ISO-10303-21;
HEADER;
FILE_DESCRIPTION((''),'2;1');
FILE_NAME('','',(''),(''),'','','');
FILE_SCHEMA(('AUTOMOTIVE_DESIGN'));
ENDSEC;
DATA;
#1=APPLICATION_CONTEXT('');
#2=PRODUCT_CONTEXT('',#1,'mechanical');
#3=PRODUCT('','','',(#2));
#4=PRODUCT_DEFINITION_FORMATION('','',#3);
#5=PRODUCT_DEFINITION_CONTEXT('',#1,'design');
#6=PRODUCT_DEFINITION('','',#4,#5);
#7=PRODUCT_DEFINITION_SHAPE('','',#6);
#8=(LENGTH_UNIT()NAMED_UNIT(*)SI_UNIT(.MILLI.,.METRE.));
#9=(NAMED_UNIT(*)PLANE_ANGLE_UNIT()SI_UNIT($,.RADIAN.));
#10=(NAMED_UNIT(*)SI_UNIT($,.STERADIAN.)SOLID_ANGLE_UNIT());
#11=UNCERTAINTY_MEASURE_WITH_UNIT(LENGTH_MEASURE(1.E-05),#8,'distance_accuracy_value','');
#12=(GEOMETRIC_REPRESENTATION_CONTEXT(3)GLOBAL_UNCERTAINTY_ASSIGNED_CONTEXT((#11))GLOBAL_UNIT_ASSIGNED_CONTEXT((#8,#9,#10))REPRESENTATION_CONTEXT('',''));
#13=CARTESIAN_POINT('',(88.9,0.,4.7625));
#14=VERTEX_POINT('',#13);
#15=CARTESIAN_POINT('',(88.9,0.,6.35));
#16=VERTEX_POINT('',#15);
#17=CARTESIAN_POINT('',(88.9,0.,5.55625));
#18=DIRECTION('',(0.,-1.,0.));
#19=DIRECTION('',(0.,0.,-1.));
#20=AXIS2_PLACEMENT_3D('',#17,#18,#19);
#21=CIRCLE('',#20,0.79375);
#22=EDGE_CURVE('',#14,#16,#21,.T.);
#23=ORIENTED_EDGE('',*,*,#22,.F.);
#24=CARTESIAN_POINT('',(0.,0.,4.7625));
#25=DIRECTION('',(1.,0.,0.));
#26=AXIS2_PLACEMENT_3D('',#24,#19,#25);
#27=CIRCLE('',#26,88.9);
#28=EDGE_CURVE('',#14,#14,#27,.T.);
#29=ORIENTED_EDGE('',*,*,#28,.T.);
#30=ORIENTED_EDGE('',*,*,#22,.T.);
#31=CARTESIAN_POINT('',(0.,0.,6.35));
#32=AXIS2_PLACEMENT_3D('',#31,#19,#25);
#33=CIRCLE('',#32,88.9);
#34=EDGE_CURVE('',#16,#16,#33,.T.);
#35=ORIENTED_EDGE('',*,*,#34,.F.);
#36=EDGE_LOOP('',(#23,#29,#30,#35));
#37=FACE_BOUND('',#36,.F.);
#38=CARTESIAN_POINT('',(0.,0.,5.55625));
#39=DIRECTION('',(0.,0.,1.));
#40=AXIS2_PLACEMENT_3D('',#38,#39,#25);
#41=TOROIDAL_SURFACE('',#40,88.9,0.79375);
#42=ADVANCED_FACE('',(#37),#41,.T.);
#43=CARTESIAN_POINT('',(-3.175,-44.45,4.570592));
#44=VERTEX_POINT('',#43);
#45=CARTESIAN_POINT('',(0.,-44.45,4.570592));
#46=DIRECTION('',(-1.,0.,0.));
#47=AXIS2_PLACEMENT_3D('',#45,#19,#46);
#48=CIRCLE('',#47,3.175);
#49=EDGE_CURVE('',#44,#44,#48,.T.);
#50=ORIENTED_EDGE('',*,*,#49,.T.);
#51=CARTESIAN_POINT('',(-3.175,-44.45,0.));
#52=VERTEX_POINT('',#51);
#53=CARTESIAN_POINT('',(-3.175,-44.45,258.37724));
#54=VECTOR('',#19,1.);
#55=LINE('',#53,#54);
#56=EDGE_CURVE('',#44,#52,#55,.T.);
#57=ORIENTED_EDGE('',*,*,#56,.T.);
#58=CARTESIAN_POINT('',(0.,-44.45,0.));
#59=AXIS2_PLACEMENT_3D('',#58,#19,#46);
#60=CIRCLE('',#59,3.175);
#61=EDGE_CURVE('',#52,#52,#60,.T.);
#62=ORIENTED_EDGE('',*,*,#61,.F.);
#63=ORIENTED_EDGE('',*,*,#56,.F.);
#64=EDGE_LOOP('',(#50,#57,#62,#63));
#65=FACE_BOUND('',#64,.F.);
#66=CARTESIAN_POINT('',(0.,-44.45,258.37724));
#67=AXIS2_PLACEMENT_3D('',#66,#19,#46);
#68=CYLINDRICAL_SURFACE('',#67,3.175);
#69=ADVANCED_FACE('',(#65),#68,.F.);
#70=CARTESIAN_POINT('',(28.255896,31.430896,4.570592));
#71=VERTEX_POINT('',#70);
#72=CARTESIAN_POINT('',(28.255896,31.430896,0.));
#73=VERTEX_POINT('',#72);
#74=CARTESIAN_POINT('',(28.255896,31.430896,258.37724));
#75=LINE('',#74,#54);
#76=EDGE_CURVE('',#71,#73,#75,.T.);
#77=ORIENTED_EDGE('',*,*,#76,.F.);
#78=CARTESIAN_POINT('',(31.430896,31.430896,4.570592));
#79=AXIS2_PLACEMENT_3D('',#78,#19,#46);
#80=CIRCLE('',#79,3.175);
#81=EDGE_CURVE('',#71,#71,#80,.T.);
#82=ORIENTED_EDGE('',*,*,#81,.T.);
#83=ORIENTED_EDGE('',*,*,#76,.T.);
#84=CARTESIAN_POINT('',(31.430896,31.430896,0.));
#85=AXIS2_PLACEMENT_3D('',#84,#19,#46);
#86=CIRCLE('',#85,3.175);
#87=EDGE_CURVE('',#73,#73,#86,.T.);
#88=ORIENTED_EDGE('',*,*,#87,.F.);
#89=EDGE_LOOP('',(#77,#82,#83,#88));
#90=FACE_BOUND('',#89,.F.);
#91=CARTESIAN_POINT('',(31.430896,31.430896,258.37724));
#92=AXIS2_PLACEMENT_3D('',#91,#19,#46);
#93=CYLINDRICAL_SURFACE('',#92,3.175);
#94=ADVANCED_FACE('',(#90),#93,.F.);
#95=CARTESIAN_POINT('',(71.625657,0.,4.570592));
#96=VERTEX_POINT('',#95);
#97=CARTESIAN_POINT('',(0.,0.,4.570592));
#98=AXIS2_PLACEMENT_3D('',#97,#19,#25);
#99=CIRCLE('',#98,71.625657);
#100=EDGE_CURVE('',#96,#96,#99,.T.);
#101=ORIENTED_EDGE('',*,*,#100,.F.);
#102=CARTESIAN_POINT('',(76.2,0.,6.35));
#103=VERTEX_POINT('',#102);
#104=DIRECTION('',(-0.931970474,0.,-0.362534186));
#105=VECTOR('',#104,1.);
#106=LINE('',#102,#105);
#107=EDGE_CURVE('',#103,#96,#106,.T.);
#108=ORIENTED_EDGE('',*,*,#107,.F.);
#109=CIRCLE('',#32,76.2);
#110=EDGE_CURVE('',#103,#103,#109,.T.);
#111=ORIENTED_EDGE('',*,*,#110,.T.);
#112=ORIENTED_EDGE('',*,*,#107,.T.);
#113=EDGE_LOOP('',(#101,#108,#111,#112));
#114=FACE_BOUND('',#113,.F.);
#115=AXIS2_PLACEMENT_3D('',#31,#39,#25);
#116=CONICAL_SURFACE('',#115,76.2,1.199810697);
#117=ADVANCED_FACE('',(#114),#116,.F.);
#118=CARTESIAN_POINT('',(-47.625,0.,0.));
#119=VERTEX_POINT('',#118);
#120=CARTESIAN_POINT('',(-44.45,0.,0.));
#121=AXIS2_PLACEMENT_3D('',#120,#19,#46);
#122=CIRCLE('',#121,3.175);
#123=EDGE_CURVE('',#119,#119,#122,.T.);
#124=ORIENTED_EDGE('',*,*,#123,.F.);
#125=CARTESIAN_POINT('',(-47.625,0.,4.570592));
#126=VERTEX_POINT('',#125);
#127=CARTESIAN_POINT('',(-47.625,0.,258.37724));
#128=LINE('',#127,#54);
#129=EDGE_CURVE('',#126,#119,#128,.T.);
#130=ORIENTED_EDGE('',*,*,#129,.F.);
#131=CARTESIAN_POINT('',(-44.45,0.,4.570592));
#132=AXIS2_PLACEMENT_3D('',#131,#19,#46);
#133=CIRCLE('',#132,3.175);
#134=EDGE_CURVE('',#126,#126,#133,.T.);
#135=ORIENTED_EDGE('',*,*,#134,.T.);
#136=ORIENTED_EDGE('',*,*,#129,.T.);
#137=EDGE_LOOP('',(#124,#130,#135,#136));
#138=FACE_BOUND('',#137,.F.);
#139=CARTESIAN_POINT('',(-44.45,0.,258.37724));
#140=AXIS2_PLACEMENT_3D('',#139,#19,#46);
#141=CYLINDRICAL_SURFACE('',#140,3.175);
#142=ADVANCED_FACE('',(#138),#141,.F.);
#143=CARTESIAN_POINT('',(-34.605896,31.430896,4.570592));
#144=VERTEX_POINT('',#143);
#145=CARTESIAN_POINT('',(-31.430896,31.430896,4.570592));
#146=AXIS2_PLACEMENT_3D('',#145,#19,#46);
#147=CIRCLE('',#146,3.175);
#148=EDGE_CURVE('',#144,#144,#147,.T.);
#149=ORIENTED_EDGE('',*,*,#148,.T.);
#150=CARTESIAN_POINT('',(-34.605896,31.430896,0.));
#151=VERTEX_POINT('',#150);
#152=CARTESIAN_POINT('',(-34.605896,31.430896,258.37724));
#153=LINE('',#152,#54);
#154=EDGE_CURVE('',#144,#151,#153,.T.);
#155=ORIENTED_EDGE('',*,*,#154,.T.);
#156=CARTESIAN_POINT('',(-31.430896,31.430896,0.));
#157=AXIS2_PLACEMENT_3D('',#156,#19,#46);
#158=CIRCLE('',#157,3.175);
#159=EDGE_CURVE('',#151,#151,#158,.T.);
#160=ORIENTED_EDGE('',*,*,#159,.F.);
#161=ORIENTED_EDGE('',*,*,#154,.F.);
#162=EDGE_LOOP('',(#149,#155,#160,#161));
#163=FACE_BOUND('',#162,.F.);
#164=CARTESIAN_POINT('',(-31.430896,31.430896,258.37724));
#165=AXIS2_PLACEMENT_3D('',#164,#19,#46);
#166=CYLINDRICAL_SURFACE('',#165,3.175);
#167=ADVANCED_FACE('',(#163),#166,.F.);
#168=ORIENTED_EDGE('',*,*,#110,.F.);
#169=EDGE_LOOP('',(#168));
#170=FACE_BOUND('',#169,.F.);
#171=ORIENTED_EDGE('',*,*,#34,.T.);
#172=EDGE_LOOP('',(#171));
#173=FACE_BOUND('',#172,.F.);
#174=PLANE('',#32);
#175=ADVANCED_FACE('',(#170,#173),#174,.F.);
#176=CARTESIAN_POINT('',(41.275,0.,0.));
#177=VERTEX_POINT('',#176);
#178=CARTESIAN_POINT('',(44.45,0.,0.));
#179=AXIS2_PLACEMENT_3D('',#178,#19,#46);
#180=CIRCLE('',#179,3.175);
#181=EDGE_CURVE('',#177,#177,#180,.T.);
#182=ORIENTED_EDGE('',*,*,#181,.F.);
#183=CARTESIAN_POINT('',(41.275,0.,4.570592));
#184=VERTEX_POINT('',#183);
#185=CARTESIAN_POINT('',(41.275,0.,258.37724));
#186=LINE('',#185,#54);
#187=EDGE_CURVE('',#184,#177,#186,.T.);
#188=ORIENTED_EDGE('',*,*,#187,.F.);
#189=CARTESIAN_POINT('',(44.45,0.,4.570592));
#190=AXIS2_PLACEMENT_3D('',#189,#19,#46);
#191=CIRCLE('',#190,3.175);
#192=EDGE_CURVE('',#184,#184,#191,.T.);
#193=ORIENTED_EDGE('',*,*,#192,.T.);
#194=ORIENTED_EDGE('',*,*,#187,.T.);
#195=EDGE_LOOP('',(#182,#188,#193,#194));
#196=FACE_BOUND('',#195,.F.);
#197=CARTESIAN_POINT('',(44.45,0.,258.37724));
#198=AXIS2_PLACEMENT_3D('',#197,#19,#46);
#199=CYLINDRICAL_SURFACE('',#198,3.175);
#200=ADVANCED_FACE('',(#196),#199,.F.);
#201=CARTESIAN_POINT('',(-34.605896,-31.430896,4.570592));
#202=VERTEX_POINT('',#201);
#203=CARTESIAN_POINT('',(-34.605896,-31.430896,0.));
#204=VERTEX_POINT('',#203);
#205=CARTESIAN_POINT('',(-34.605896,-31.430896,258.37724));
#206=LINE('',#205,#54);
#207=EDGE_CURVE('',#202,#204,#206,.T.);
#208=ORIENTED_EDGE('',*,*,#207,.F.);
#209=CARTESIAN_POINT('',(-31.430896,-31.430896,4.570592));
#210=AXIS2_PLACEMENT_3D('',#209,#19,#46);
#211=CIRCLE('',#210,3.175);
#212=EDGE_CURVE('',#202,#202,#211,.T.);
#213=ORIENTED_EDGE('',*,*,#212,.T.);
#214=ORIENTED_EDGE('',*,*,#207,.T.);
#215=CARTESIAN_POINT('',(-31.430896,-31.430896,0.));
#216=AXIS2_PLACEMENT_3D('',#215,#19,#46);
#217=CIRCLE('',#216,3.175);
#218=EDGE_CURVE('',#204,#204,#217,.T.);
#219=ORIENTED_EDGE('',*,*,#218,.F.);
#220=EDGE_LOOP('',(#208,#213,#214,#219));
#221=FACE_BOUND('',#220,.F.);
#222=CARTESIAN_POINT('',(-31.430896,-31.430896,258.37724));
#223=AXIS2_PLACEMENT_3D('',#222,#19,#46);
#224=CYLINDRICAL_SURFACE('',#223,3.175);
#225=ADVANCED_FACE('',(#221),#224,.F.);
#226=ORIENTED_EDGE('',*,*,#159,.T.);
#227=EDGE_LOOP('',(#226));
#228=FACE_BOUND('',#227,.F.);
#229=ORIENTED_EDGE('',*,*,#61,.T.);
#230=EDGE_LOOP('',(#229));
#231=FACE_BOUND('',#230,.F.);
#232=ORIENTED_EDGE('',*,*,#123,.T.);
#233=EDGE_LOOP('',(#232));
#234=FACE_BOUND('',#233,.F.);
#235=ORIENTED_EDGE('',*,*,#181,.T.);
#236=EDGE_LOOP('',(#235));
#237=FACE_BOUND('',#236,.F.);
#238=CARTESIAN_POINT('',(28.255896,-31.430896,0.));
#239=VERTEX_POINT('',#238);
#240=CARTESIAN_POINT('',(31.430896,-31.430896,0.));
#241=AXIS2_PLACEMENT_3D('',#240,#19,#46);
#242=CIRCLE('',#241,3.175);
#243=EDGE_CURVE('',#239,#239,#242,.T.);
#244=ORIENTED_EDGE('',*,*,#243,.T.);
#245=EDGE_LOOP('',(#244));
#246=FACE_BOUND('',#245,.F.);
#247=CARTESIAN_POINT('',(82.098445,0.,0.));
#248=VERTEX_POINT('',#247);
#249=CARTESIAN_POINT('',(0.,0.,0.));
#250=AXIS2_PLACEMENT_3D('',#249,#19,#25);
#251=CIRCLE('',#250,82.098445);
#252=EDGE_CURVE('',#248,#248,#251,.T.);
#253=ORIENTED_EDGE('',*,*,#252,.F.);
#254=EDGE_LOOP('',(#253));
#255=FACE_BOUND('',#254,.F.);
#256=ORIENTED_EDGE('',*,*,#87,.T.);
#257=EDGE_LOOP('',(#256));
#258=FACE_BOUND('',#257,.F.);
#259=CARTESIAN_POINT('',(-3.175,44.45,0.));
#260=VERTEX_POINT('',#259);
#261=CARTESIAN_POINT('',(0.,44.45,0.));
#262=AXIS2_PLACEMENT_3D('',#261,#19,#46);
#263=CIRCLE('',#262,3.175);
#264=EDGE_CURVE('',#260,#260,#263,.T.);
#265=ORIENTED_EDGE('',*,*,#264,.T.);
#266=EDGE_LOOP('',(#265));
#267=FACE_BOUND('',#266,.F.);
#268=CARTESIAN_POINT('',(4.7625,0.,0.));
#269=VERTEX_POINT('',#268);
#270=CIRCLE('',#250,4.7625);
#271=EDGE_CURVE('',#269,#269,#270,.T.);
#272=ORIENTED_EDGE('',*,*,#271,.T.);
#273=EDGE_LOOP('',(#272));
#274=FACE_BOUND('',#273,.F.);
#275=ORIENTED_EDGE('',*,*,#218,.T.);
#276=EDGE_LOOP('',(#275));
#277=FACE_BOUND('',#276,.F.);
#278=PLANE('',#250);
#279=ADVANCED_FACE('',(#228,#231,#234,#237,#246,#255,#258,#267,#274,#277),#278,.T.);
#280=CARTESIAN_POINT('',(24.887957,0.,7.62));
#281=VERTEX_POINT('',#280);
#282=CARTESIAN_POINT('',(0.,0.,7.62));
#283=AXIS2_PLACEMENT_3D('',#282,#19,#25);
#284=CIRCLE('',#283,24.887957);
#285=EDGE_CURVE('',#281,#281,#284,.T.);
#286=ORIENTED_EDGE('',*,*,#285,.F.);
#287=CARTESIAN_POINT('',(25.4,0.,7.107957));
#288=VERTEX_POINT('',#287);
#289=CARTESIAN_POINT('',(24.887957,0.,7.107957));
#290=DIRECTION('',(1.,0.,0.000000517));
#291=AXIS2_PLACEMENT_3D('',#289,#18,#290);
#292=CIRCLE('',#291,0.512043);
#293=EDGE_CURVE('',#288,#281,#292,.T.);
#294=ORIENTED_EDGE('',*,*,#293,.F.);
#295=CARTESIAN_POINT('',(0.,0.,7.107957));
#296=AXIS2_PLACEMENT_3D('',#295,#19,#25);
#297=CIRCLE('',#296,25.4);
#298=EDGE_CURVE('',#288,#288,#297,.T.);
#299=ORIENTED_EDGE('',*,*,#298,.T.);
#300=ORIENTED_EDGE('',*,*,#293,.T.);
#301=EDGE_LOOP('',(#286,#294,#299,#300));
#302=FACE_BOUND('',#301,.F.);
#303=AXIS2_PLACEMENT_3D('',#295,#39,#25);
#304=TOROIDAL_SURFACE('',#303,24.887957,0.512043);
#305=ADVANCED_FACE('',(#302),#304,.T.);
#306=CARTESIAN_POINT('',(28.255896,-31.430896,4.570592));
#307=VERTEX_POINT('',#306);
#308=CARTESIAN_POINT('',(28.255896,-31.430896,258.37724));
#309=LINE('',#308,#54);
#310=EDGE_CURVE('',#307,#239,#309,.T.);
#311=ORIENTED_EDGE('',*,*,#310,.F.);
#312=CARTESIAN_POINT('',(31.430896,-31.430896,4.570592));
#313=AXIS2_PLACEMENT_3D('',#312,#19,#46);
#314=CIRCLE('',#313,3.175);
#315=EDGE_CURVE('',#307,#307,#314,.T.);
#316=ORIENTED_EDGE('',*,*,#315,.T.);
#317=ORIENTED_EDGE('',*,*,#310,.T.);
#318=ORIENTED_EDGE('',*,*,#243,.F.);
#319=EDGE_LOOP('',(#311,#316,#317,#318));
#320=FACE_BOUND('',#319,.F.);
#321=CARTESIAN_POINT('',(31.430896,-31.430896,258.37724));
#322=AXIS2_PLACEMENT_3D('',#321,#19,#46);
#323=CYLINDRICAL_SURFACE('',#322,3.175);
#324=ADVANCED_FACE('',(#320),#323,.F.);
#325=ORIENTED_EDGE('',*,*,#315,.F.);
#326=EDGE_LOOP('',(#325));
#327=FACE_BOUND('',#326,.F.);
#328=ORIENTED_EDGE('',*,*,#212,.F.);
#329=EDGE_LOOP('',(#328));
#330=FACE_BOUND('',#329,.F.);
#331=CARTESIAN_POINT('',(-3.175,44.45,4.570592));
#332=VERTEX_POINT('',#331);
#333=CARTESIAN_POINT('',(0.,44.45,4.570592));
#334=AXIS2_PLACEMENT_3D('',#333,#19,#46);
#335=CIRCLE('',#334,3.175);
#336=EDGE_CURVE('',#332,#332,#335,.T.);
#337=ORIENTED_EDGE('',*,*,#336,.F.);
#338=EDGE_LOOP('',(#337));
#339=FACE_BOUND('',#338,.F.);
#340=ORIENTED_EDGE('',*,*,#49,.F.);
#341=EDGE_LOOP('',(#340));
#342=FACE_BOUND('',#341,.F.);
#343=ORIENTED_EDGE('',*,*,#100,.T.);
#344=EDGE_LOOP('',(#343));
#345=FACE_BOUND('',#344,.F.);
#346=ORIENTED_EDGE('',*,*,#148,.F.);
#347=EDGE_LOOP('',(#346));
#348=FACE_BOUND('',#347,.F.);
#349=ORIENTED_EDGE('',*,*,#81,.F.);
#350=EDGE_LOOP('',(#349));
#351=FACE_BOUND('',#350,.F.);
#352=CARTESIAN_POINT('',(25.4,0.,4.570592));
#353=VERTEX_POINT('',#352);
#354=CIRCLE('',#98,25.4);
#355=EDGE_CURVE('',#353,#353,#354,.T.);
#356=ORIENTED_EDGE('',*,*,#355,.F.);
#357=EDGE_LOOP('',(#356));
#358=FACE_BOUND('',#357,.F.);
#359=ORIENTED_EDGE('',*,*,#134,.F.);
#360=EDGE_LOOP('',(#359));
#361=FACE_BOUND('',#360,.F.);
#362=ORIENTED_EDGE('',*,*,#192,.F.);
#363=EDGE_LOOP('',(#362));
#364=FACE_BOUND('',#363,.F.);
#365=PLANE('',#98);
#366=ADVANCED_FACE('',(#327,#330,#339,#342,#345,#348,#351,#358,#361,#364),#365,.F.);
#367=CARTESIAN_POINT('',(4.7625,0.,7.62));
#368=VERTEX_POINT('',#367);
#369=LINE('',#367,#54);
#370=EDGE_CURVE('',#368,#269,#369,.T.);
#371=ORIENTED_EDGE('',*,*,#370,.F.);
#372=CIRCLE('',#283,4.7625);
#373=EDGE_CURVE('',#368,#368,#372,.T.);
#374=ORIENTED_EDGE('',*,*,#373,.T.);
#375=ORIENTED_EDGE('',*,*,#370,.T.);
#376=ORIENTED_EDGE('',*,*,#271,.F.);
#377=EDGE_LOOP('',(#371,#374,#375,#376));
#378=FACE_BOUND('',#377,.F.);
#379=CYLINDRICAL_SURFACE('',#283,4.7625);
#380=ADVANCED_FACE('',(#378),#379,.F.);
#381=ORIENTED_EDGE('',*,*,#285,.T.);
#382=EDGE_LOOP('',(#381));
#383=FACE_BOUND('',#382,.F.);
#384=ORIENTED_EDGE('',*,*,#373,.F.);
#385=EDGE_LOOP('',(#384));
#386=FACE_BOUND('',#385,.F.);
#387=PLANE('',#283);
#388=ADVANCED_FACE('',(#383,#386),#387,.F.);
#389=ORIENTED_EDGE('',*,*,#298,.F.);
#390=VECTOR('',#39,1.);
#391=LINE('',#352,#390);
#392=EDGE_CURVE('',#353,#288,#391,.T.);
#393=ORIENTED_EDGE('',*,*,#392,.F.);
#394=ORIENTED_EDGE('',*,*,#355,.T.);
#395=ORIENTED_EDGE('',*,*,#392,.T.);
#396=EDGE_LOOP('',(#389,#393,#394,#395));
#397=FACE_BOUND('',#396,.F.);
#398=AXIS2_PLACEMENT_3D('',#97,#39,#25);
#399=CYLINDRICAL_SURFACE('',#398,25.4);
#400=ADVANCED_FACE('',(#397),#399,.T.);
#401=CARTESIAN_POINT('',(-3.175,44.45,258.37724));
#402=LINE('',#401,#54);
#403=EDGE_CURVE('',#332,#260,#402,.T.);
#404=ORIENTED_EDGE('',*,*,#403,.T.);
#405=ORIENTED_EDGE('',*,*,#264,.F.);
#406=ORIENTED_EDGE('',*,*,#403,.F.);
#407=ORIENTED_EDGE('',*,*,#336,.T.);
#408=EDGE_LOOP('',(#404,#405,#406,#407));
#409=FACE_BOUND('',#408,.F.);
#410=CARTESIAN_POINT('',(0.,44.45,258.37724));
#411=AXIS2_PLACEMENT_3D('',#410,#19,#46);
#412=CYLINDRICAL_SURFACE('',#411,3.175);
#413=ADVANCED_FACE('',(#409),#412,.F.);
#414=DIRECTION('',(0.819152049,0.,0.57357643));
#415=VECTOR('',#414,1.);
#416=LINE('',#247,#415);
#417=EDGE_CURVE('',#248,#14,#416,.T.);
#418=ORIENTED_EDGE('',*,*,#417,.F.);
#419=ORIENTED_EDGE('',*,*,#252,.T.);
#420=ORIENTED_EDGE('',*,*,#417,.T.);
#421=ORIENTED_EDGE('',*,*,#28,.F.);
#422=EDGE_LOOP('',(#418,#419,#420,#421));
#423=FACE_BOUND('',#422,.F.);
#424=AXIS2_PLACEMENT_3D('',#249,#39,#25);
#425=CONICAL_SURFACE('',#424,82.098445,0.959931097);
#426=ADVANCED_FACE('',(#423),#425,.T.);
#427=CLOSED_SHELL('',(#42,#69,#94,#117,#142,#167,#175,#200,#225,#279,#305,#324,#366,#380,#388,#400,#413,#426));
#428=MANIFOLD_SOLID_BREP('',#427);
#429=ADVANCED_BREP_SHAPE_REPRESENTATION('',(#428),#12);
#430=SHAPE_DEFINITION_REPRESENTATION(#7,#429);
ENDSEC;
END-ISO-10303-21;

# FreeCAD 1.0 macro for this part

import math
import FreeCAD as App
import Part
import Sketcher
Q = App.Units.Quantity

doc = App.newDocument("Part")
params = doc.addObject("Spreadsheet::Sheet", "Params")
for row, (alias, value) in enumerate([
    ("sketch1_width", "0.5 in"),
    ("sketch1_height", "0.3 in"),
    ("sketch1_radius", "0.03125 in"),
    ("revolution_angle", "360 deg"),
    ("sketch2_diameter", "0.25 in"),
    ("hole_diameter", "0.25 in"),
], start=1):
    params.set(f"A{row}", alias)
    params.set(f"B{row}", "=" + value)
    params.setAlias(f"B{row}", alias)

body = doc.addObject("PartDesign::Body", "Body")

sketch1 = body.newObject("Sketcher::SketchObject", "Sketch")
sketch1.AttachmentSupport = (doc.getObject("XZ_Plane"), [""])
sketch1.MapMode = "FlatFace"
sketch1.addGeometry([
    Part.LineSegment(App.Vector(4.7625, 7.62, 0), App.Vector(4.7625, 0, 0)),
    Part.LineSegment(App.Vector(4.7625, 0, 0), App.Vector(82.098445, 0, 0)),
    Part.LineSegment(App.Vector(82.098445, 0, 0), App.Vector(88.9, 4.7625, 0)),
    Part.ArcOfCircle(Part.Circle(App.Vector(88.9, 5.55625, 0), App.Vector(0, 0, 1), 0.79375), math.radians(-90), math.radians(90)),
    Part.LineSegment(App.Vector(88.9, 6.35, 0), App.Vector(76.2, 6.35, 0)),
    Part.LineSegment(App.Vector(76.2, 6.35, 0), App.Vector(71.625657, 4.570592, 0)),
    Part.LineSegment(App.Vector(71.625657, 4.570592, 0), App.Vector(25.4, 4.570592, 0)),
    Part.LineSegment(App.Vector(25.4, 4.570592, 0), App.Vector(25.4, 7.107957, 0)),
    Part.ArcOfCircle(Part.Circle(App.Vector(24.887957, 7.107957, 0), App.Vector(0, 0, 1), 0.512043), math.radians(0.00003), math.radians(89.99997)),
    Part.LineSegment(App.Vector(24.887957, 7.62, 0), App.Vector(4.7625, 7.62, 0)),
], False)
sketch1.addConstraint([
    Sketcher.Constraint("Coincident", 0, 2, 1, 1),
    Sketcher.Constraint("Coincident", 1, 2, 2, 1),
    Sketcher.Constraint("Coincident", 2, 2, 3, 1),
    Sketcher.Constraint("Tangent", 3, 2, 4, 1),
    Sketcher.Constraint("Coincident", 4, 2, 5, 1),
    Sketcher.Constraint("Coincident", 5, 2, 6, 1),
    Sketcher.Constraint("Coincident", 6, 2, 7, 1),
    Sketcher.Constraint("Tangent", 7, 2, 8, 1),
    Sketcher.Constraint("Tangent", 8, 2, 9, 1),
    Sketcher.Constraint("Coincident", 9, 2, 0, 1),
    Sketcher.Constraint("Vertical", 0),
    Sketcher.Constraint("Horizontal", 1),
    Sketcher.Constraint("Horizontal", 4),
    Sketcher.Constraint("Horizontal", 6),
    Sketcher.Constraint("Vertical", 7),
    Sketcher.Constraint("Horizontal", 9),
    Sketcher.Constraint("PointOnObject", 0, 2, -1),
    Sketcher.Constraint("Vertical", 3, 3, 2, 2),
    Sketcher.Constraint("DistanceX", 4, 2, 4, 1, Q("0.5 in")),
    Sketcher.Constraint("DistanceY", 0, 2, 0, 1, Q("0.3 in")),
    Sketcher.Constraint("DistanceX", -1, 1, 4, 2, Q("3 in")),
    Sketcher.Constraint("DistanceX", -1, 1, 6, 2, Q("1 in")),
    Sketcher.Constraint("Angle", 2, Q("35 deg")),
    Sketcher.Constraint("Radius", 3, Q("0.03125 in")),
    Sketcher.Constraint("DistanceY", -1, 1, 3, 2, Q("0.25 in")),
    Sketcher.Constraint("DistanceX", -1, 1, 0, 2, Q("0.1875 in")),
    Sketcher.Constraint("Radius", 8, 0.512043),
    Sketcher.Constraint("DistanceX", 8, 2, 5, 2, 46.7377),
    Sketcher.Constraint("Distance", 5, 4.908249),
])
sketch1.setExpression("Constraints[18]", "Params.sketch1_width")
sketch1.setExpression("Constraints[19]", "Params.sketch1_height")
sketch1.setExpression("Constraints[23]", "Params.sketch1_radius")
revolution = body.newObject("PartDesign::Revolution", "Revolution")
revolution.Profile = sketch1
revolution.ReferenceAxis = (sketch1, ["V_Axis"])
revolution.setExpression("Angle", "Params.revolution_angle")

sketch2 = body.newObject("Sketcher::SketchObject", "Sketch001")
sketch2.AttachmentSupport = (doc.getObject("XY_Plane"), [""])
sketch2.MapMode = "FlatFace"
sketch2.AttachmentOffset = App.Placement(App.Vector(0, 0, 4.570592), App.Rotation())
sketch2.addGeometry([
    Part.Circle(App.Vector(0, 44.45, 0), App.Vector(0, 0, 1), 3.175),
    Part.Circle(App.Vector(31.430896, 31.430896, 0), App.Vector(0, 0, 1), 3.175),
    Part.Circle(App.Vector(44.45, 0, 0), App.Vector(0, 0, 1), 3.175),
    Part.Circle(App.Vector(31.430896, -31.430896, 0), App.Vector(0, 0, 1), 3.175),
    Part.Circle(App.Vector(0, -44.45, 0), App.Vector(0, 0, 1), 3.175),
    Part.Circle(App.Vector(-31.430896, -31.430896, 0), App.Vector(0, 0, 1), 3.175),
    Part.Circle(App.Vector(-44.45, 0, 0), App.Vector(0, 0, 1), 3.175),
    Part.Circle(App.Vector(-31.430896, 31.430896, 0), App.Vector(0, 0, 1), 3.175),
], False)
sketch2.addConstraint([
    Sketcher.Constraint("Equal", 0, 1),
    Sketcher.Constraint("Equal", 1, 2),
    Sketcher.Constraint("Equal", 2, 3),
    Sketcher.Constraint("Equal", 3, 4),
    Sketcher.Constraint("Equal", 4, 5),
    Sketcher.Constraint("Equal", 5, 6),
    Sketcher.Constraint("Equal", 6, 7),
    Sketcher.Constraint("Symmetric", 0, 3, 4, 3, -1, 1),
    Sketcher.Constraint("Symmetric", 1, 3, 5, 3, -1, 1),
    Sketcher.Constraint("Symmetric", 2, 3, 6, 3, -1, 1),
    Sketcher.Constraint("Symmetric", 3, 3, 7, 3, -1, 1),
    Sketcher.Constraint("Symmetric", 3, 3, 5, 3, -2),
    Sketcher.Constraint("PointOnObject", 0, 3, -2),
    Sketcher.Constraint("PointOnObject", 2, 3, -1),
    Sketcher.Constraint("Diameter", 0, Q("0.25 in")),
    Sketcher.Constraint("DistanceY", 4, 3, 0, 3, Q("3.5 in")),
    Sketcher.Constraint("DistanceX", -1, 1, 2, 3, Q("1.75 in")),
    Sketcher.Constraint("DistanceX", -1, 1, 1, 3, 31.430896),
    Sketcher.Constraint("DistanceY", -1, 1, 1, 3, 31.430896),
])
sketch2.setExpression("Constraints[14]", "Params.sketch2_diameter")
doc.recompute()
hole = body.newObject("PartDesign::Hole", "Hole")
hole.Profile = sketch2
hole.ThreadType = "None"
hole.setExpression("Diameter", "Params.hole_diameter")
hole.DepthType = "ThroughAll"

doc.recompute()
